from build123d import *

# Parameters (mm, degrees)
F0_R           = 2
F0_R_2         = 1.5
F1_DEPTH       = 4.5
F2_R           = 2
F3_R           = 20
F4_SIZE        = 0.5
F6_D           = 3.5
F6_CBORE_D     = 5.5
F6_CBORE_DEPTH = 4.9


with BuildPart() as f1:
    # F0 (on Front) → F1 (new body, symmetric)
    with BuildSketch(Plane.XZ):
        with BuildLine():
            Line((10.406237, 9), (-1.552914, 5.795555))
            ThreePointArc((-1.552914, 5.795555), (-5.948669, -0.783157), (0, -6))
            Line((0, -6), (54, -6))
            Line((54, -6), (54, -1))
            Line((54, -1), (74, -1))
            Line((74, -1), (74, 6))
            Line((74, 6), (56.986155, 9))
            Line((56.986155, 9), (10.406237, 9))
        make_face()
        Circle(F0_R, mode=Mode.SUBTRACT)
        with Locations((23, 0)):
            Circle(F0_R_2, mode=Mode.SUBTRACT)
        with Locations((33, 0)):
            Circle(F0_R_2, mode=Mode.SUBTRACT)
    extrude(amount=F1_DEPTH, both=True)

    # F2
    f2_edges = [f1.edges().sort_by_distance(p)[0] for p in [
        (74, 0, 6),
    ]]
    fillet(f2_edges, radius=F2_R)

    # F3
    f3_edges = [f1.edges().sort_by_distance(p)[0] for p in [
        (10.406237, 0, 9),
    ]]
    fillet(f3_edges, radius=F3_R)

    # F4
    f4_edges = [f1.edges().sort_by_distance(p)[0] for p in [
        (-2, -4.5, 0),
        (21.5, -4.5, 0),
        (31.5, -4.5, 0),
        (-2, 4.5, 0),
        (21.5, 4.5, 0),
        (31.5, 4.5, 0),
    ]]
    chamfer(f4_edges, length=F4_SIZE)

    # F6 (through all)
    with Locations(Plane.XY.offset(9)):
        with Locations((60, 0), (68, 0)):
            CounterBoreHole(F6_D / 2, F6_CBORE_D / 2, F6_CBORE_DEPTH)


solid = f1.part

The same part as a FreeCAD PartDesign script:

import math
import FreeCAD as App
import Part
import Sketcher
from FreeCAD import Vector
Q = App.Units.Quantity


def edges_at(feature, points):
    """Names of the edges that pass closest to the given points."""
    edges = feature.Shape.Edges
    near = lambda p: min(range(len(edges)), key=lambda i: edges[i].distToShape(Part.Vertex(*p))[0])
    return sorted({f"Edge{near(p) + 1}" for p in points})

doc = App.newDocument("Part")
body = doc.addObject("PartDesign::Body", "Body")

sketch1 = doc.addObject("Sketcher::SketchObject", "Sketch")
body.addObject(sketch1)
sketch1.AttachmentSupport = (doc.XZ_Plane, [""])
sketch1.MapMode = "FlatFace"
sketch1.addGeometry(Part.LineSegment(Vector(10.406237, 9, 0), Vector(-1.552914, 5.795555, 0)), False)
sketch1.addGeometry(Part.ArcOfCircle(Part.Circle(Vector(0, 0, 0), Vector(0, 0, 1), 6), math.radians(104.999999), math.radians(269.999998)), False)
sketch1.addGeometry(Part.LineSegment(Vector(0, -6, 0), Vector(54, -6, 0)), False)
sketch1.addGeometry(Part.LineSegment(Vector(54, -6, 0), Vector(54, -1, 0)), False)
sketch1.addGeometry(Part.LineSegment(Vector(54, -1, 0), Vector(74, -1, 0)), False)
sketch1.addGeometry(Part.LineSegment(Vector(74, -1, 0), Vector(74, 6, 0)), False)
sketch1.addGeometry(Part.LineSegment(Vector(74, 6, 0), Vector(56.986155, 9, 0)), False)
sketch1.addGeometry(Part.LineSegment(Vector(56.986155, 9, 0), Vector(10.406237, 9, 0)), False)
sketch1.addGeometry(Part.Circle(Vector(0, 0, 0), Vector(0, 0, 1), 2), False)
sketch1.addGeometry(Part.Circle(Vector(23, 0, 0), Vector(0, 0, 1), 1.5), False)
sketch1.addGeometry(Part.Circle(Vector(33, 0, 0), Vector(0, 0, 1), 1.5), False)
sketch1.addConstraint(Sketcher.Constraint("Tangent", 0, 2, 1, 1))
sketch1.addConstraint(Sketcher.Constraint("Tangent", 1, 2, 2, 1))
sketch1.addConstraint(Sketcher.Constraint("Coincident", 2, 2, 3, 1))
sketch1.addConstraint(Sketcher.Constraint("Coincident", 3, 2, 4, 1))
sketch1.addConstraint(Sketcher.Constraint("Coincident", 4, 2, 5, 1))
sketch1.addConstraint(Sketcher.Constraint("Coincident", 5, 2, 6, 1))
sketch1.addConstraint(Sketcher.Constraint("Coincident", 6, 2, 7, 1))
sketch1.addConstraint(Sketcher.Constraint("Coincident", 7, 2, 0, 1))
sketch1.addConstraint(Sketcher.Constraint("Horizontal", 2))
sketch1.addConstraint(Sketcher.Constraint("Vertical", 3))
sketch1.addConstraint(Sketcher.Constraint("Horizontal", 4))
sketch1.addConstraint(Sketcher.Constraint("Vertical", 5))
sketch1.addConstraint(Sketcher.Constraint("Horizontal", 7))
sketch1.addConstraint(Sketcher.Constraint("Coincident", 1, 3, -1, 1))
sketch1.addConstraint(Sketcher.Constraint("Coincident", 8, 3, -1, 1))
sketch1.addConstraint(Sketcher.Constraint("Equal", 9, 10))
sketch1.addConstraint(Sketcher.Constraint("PointOnObject", 9, 3, -1))
sketch1.addConstraint(Sketcher.Constraint("PointOnObject", 10, 3, -1))
sketch1.addConstraint(Sketcher.Constraint("Diameter", 8, 4.0))
sketch1.addConstraint(Sketcher.Constraint("Diameter", 9, 3.0))
sketch1.addConstraint(Sketcher.Constraint("Radius", 1, 6.0))
sketch1.addConstraint(Sketcher.Constraint("DistanceX", 2, 1, 2, 2, 54.0))
sketch1.addConstraint(Sketcher.Constraint("DistanceX", 4, 1, 4, 2, 20.0))
sketch1.addConstraint(Sketcher.Constraint("DistanceY", 3, 1, 3, 2, 5.0))
sketch1.addConstraint(Sketcher.Constraint("DistanceY", 5, 1, 5, 2, 7.0))
sketch1.addConstraint(Sketcher.Constraint("Angle", 0, Q("-164.999999 deg")))
sketch1.addConstraint(Sketcher.Constraint("Angle", 6, Q("170 deg")))
sketch1.addConstraint(Sketcher.Constraint("DistanceX", -1, 1, 9, 3, 23.0))
sketch1.addConstraint(Sketcher.Constraint("DistanceX", -1, 1, 10, 3, 33.0))
sketch1.addConstraint(Sketcher.Constraint("DistanceY", -1, 1, 6, 2, 9.0))
pad1 = doc.addObject("PartDesign::Pad", "Pad")
body.addObject(pad1)
pad1.Profile = sketch1
pad1.Length = 9
pad1.Midplane = True
doc.recompute()

fillet = doc.addObject("PartDesign::Fillet", "Fillet")
body.addObject(fillet)
fillet.Base = (pad1, edges_at(pad1, [(74, 0, 6)]))
fillet.Radius = 2
doc.recompute()

fillet2 = doc.addObject("PartDesign::Fillet", "Fillet001")
body.addObject(fillet2)
fillet2.Base = (fillet, edges_at(fillet, [(10.406, 0, 9)]))
fillet2.Radius = 20
doc.recompute()

chamfer = doc.addObject("PartDesign::Chamfer", "Chamfer")
body.addObject(chamfer)
chamfer.Base = (fillet2, edges_at(fillet2, [
    (-2, -4.5, 0),
    (21.5, -4.5, 0),
    (31.5, -4.5, 0),
    (-2, 4.5, 0),
    (21.5, 4.5, 0),
    (31.5, 4.5, 0),
]))
chamfer.Size = 0.5

sketch2 = doc.addObject("Sketcher::SketchObject", "Sketch001")
body.addObject(sketch2)
sketch2.AttachmentSupport = (doc.XY_Plane, [""])
sketch2.MapMode = "FlatFace"
sketch2.AttachmentOffset = App.Placement(Vector(0, 0, 9), App.Rotation())
sketch2.addGeometry(Part.Circle(Vector(60, 0, 0), Vector(0, 0, 1), 1.75), False)
sketch2.addGeometry(Part.Circle(Vector(68, 0, 0), Vector(0, 0, 1), 1.75), False)
sketch2.addConstraint(Sketcher.Constraint("Equal", 0, 1))
sketch2.addConstraint(Sketcher.Constraint("PointOnObject", 0, 3, -1))
sketch2.addConstraint(Sketcher.Constraint("PointOnObject", 1, 3, -1))
sketch2.addConstraint(Sketcher.Constraint("Diameter", 0, 3.5))
sketch2.addConstraint(Sketcher.Constraint("DistanceX", -1, 1, 0, 3, 60.0))
sketch2.addConstraint(Sketcher.Constraint("DistanceX", -1, 1, 1, 3, 68.0))
doc.recompute()
hole = doc.addObject("PartDesign::Hole", "Hole")
body.addObject(hole)
hole.Profile = sketch2
hole.ThreadType = "None"
hole.Diameter = 3.5
hole.DepthType = "ThroughAll"
hole.HoleCutType = "Counterbore"
hole.HoleCutDiameter = 5.5
hole.HoleCutDepth = 4.9

doc.recompute()
